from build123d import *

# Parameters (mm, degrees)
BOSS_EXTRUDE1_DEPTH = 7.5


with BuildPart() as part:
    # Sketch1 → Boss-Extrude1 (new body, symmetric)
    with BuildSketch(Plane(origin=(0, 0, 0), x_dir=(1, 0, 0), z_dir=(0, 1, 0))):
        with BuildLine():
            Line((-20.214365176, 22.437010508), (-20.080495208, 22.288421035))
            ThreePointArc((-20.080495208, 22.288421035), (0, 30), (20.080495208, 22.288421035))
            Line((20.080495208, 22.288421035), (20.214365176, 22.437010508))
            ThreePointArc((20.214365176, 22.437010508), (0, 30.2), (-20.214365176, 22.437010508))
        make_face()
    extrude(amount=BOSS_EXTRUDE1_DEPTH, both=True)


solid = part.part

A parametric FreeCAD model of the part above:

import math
import FreeCAD as App
import Part
import Sketcher

V = App.Vector
Q = App.Units.Quantity

doc = App.newDocument("Part")
body = doc.addObject("PartDesign::Body", "Body")

sketch1 = body.newObject("Sketcher::SketchObject", "Sketch")
sketch1.AttachmentSupport = (doc.getObject("XZ_Plane"), [""])
sketch1.MapMode = "FlatFace"
sketch1.addGeometry(Part.LineSegment(V(-20.21, -22.44, 0), V(-20.08, -22.29, 0)), False)
sketch1.addGeometry(Part.ArcOfCircle(Part.Circle(V(0, 0, 0), V(0, 0, 1), 30), math.radians(-132), math.radians(-48)), False)
sketch1.addGeometry(Part.LineSegment(V(20.08, -22.29, 0), V(20.21, -22.44, 0)), False)
sketch1.addGeometry(Part.ArcOfCircle(Part.Circle(V(0, 0, 0), V(0, 0, 1), 30.2), math.radians(-132), math.radians(-48)), False)
sketch1.addConstraint(Sketcher.Constraint("Coincident", 0, 2, 1, 1))
sketch1.addConstraint(Sketcher.Constraint("Coincident", 1, 2, 2, 1))
sketch1.addConstraint(Sketcher.Constraint("Coincident", 2, 2, 3, 2))
sketch1.addConstraint(Sketcher.Constraint("Coincident", 3, 1, 0, 1))
sketch1.addConstraint(Sketcher.Constraint("Coincident", 1, 3, -1, 1))
sketch1.addConstraint(Sketcher.Constraint("Coincident", 3, 3, -1, 1))
sketch1.addConstraint(Sketcher.Constraint("Horizontal", 0, 2, 1, 2))
sketch1.addConstraint(Sketcher.Constraint("Horizontal", 2, 2, 3, 1))
sketch1.addConstraint(Sketcher.Constraint("Radius", 1, Q("30 mm")))
sketch1.addConstraint(Sketcher.Constraint("Radius", 3, Q("30.2 mm")))
sketch1.addConstraint(Sketcher.Constraint("DistanceY", 0, 2, -1, 1, Q("22.288421 mm")))
sketch1.addConstraint(Sketcher.Constraint("DistanceY", 2, 2, -1, 1, Q("22.437011 mm")))
pad1 = body.newObject("PartDesign::Pad", "Pad")
pad1.Profile = sketch1
pad1.Length = 15
pad1.Midplane = True

doc.recompute()
